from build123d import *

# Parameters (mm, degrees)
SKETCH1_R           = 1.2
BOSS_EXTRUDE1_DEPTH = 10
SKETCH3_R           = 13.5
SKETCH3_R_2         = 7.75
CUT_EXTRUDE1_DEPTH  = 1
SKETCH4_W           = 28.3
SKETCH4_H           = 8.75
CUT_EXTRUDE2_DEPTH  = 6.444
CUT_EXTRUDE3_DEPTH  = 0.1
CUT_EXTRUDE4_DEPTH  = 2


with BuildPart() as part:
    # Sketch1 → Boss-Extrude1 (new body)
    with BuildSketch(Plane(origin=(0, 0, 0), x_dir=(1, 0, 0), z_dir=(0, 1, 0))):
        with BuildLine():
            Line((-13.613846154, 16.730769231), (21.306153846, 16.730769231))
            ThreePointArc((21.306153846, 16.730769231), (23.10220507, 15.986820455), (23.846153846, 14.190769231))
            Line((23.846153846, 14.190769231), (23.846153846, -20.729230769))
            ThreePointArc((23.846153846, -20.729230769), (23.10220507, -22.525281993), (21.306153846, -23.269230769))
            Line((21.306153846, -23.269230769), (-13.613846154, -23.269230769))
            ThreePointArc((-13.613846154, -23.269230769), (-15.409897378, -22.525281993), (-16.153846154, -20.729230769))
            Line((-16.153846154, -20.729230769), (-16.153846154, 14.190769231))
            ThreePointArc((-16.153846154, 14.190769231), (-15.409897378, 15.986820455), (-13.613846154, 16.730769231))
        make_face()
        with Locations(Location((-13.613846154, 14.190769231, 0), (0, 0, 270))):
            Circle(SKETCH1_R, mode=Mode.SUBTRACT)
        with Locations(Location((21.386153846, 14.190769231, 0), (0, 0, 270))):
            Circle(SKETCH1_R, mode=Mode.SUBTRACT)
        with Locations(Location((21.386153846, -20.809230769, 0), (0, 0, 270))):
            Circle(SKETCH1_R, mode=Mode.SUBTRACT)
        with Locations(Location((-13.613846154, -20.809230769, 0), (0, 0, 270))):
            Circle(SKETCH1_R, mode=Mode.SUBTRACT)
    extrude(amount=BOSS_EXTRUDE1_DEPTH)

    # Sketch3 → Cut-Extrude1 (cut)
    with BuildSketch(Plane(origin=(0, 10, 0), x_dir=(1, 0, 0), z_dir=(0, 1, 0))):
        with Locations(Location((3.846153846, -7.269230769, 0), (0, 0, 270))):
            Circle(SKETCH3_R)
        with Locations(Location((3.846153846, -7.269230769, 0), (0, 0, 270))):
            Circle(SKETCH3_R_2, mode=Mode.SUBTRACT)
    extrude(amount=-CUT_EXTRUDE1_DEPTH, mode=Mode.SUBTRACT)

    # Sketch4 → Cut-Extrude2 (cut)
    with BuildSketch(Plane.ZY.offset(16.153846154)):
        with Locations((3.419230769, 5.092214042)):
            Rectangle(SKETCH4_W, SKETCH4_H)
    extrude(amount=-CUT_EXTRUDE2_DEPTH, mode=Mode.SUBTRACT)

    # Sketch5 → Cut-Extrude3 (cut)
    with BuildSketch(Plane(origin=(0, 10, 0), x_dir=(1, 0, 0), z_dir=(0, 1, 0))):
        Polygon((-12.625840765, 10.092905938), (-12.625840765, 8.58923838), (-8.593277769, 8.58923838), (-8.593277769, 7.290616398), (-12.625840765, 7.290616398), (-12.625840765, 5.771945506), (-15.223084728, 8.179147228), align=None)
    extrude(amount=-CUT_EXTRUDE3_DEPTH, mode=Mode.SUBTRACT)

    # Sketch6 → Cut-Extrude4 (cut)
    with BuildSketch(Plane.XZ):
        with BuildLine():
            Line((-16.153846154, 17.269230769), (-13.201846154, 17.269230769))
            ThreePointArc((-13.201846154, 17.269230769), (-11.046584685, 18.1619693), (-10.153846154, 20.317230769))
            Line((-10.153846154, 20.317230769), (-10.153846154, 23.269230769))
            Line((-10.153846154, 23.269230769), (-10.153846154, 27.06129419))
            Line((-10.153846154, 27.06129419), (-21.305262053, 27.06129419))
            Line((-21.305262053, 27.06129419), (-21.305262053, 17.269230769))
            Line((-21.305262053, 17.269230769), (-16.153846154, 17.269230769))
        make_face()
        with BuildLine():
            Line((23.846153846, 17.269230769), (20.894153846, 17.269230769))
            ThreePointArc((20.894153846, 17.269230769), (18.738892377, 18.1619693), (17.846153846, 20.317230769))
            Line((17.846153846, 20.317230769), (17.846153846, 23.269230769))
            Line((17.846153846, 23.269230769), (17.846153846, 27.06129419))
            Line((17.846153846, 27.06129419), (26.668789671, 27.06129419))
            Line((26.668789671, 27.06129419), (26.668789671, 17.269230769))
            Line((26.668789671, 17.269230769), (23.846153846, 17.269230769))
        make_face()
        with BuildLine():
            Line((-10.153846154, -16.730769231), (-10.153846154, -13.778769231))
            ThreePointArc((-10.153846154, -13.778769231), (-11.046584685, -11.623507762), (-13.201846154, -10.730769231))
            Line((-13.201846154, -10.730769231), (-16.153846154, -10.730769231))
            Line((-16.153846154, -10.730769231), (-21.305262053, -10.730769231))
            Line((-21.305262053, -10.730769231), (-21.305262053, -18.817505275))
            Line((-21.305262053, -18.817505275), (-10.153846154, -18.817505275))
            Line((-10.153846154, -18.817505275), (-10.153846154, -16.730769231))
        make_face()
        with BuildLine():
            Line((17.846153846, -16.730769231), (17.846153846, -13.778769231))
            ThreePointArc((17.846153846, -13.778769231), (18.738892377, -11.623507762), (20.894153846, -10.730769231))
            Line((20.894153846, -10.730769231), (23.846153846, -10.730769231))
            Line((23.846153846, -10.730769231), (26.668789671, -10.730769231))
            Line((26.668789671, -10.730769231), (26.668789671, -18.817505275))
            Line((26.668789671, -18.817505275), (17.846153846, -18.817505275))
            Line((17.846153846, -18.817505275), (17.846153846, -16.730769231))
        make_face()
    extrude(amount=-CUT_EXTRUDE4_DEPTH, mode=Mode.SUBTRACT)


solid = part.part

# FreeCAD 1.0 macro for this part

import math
import FreeCAD as App
import Part
import Sketcher
from FreeCAD import Vector
Q = App.Units.Quantity


def add_polygon(sketch, points):
    """Adds a closed chain of lines whose ends are joined by coincident constraints."""
    first, n = sketch.GeometryCount, len(points)
    for a, b in zip(points, points[1:] + points[:1]):
        sketch.addGeometry(Part.LineSegment(App.Vector(*a, 0), App.Vector(*b, 0)), False)
    for i in range(n):
        sketch.addConstraint(Sketcher.Constraint("Coincident", first + i, 2, first + (i + 1) % n, 1))

doc = App.newDocument("Part")
body = doc.addObject("PartDesign::Body", "Body")

sketch1 = doc.addObject("Sketcher::SketchObject", "Sketch")
body.addObject(sketch1)
sketch1.AttachmentSupport = (doc.XZ_Plane, [""])
sketch1.MapMode = "FlatFace"
sketch1.addGeometry(Part.LineSegment(Vector(21.3, -16.7, 0), Vector(-13.6, -16.7, 0)), False)
sketch1.addGeometry(Part.ArcOfCircle(Part.Circle(Vector(-13.6, -14.2, 0), Vector(0, 0, 1), 2.5), math.radians(-180), math.radians(-90)), False)
sketch1.addGeometry(Part.LineSegment(Vector(-16.2, -14.2, 0), Vector(-16.2, 20.7, 0)), False)
sketch1.addGeometry(Part.ArcOfCircle(Part.Circle(Vector(-13.6, 20.7, 0), Vector(0, 0, 1), 2.5), math.radians(90), math.radians(180)), False)
sketch1.addGeometry(Part.LineSegment(Vector(-13.6, 23.3, 0), Vector(21.3, 23.3, 0)), False)
sketch1.addGeometry(Part.ArcOfCircle(Part.Circle(Vector(21.3, 20.7, 0), Vector(0, 0, 1), 2.5), math.radians(0), math.radians(90)), False)
sketch1.addGeometry(Part.LineSegment(Vector(23.8, 20.7, 0), Vector(23.8, -14.2, 0)), False)
sketch1.addGeometry(Part.ArcOfCircle(Part.Circle(Vector(21.3, -14.2, 0), Vector(0, 0, 1), 2.5), math.radians(-90), math.radians(0)), False)
sketch1.addGeometry(Part.Circle(Vector(21.4, 20.8, 0), Vector(0, 0, 1), 1.2), False)
sketch1.addGeometry(Part.Circle(Vector(-13.6, 20.8, 0), Vector(0, 0, 1), 1.2), False)
sketch1.addGeometry(Part.Circle(Vector(21.4, -14.2, 0), Vector(0, 0, 1), 1.2), False)
sketch1.addGeometry(Part.Circle(Vector(-13.6, -14.2, 0), Vector(0, 0, 1), 1.2), False)
sketch1.addConstraint(Sketcher.Constraint("Tangent", 0, 2, 1, 2))
sketch1.addConstraint(Sketcher.Constraint("Tangent", 1, 1, 2, 1))
sketch1.addConstraint(Sketcher.Constraint("Tangent", 2, 2, 3, 2))
sketch1.addConstraint(Sketcher.Constraint("Tangent", 3, 1, 4, 1))
sketch1.addConstraint(Sketcher.Constraint("Tangent", 4, 2, 5, 2))
sketch1.addConstraint(Sketcher.Constraint("Tangent", 5, 1, 6, 1))
sketch1.addConstraint(Sketcher.Constraint("Tangent", 6, 2, 7, 2))
sketch1.addConstraint(Sketcher.Constraint("Tangent", 7, 1, 0, 1))
sketch1.addConstraint(Sketcher.Constraint("Horizontal", 0))
sketch1.addConstraint(Sketcher.Constraint("Vertical", 2))
sketch1.addConstraint(Sketcher.Constraint("Horizontal", 4))
sketch1.addConstraint(Sketcher.Constraint("Vertical", 6))
sketch1.addConstraint(Sketcher.Constraint("Coincident", 11, 3, 1, 3))
sketch1.addConstraint(Sketcher.Constraint("Equal", 1, 3))
sketch1.addConstraint(Sketcher.Constraint("Equal", 3, 5))
sketch1.addConstraint(Sketcher.Constraint("Equal", 5, 7))
sketch1.addConstraint(Sketcher.Constraint("Equal", 8, 9))
sketch1.addConstraint(Sketcher.Constraint("Equal", 9, 10))
sketch1.addConstraint(Sketcher.Constraint("Equal", 10, 11))
sketch1.addConstraint(Sketcher.Constraint("Horizontal", 8, 3, 9, 3))
sketch1.addConstraint(Sketcher.Constraint("Horizontal", 7, 3, 10, 3))
sketch1.addConstraint(Sketcher.Constraint("Vertical", 3, 3, 9, 3))
sketch1.addConstraint(Sketcher.Constraint("Vertical", 8, 3, 10, 3))
sketch1.addConstraint(Sketcher.Constraint("Equal", 4, 2))
sketch1.addConstraint(Sketcher.Constraint("Diameter", 8, Q("2.4 mm")))
sketch1.addConstraint(Sketcher.Constraint("Radius", 1, Q("2.54 mm")))
sketch1.addConstraint(Sketcher.Constraint("DistanceX", 3, 3, 8, 3, Q("35 mm")))
sketch1.addConstraint(Sketcher.Constraint("DistanceY", 7, 3, 8, 3, Q("35 mm")))
sketch1.addConstraint(Sketcher.Constraint("DistanceX", 0, 2, 0, 1, Q("34.92 mm")))
sketch1.addConstraint(Sketcher.Constraint("DistanceY", 1, 3, -1, 1, Q("14.190769 mm")))
sketch1.addConstraint(Sketcher.Constraint("DistanceX", 1, 3, -1, 1, Q("13.613846 mm")))
pad1 = doc.addObject("PartDesign::Pad", "Pad")
body.addObject(pad1)
pad1.Profile = sketch1
pad1.Length = 10
pad1.Reversed = True

sketch2 = doc.addObject("Sketcher::SketchObject", "Sketch001")
body.addObject(sketch2)
sketch2.AttachmentSupport = (doc.XZ_Plane, [""])
sketch2.MapMode = "FlatFace"
sketch2.AttachmentOffset = App.Placement(Vector(0, 0, -10), App.Rotation())
sketch2.addGeometry(Part.Circle(Vector(4, 7, 0), Vector(0, 0, 1), 14), False)
sketch2.addGeometry(Part.Circle(Vector(4, 7, 0), Vector(0, 0, 1), 8), False)
sketch2.addConstraint(Sketcher.Constraint("Coincident", 1, 3, 0, 3))
sketch2.addConstraint(Sketcher.Constraint("Diameter", 0, Q("27 mm")))
sketch2.addConstraint(Sketcher.Constraint("Diameter", 1, Q("15.5 mm")))
sketch2.addConstraint(Sketcher.Constraint("DistanceY", -1, 1, 0, 3, Q("7.269231 mm")))
sketch2.addConstraint(Sketcher.Constraint("DistanceX", -1, 1, 0, 3, Q("3.846154 mm")))
pocket1 = doc.addObject("PartDesign::Pocket", "Pocket")
body.addObject(pocket1)
pocket1.Profile = sketch2
pocket1.Length = 1
pocket1.Reversed = True

sketch3 = doc.addObject("Sketcher::SketchObject", "Sketch002")
body.addObject(sketch3)
sketch3.AttachmentSupport = (doc.YZ_Plane, [""])
sketch3.MapMode = "FlatFace"
sketch3.AttachmentOffset = App.Placement(Vector(0, 0, -16.153846), App.Rotation())
add_polygon(sketch3, [(9, -11), (1, -11), (1, 18), (9, 18)])
sketch3.addConstraint(Sketcher.Constraint("Horizontal", 0))
sketch3.addConstraint(Sketcher.Constraint("Vertical", 1))
sketch3.addConstraint(Sketcher.Constraint("Horizontal", 2))
sketch3.addConstraint(Sketcher.Constraint("Vertical", 3))
sketch3.addConstraint(Sketcher.Constraint("DistanceY", 1, 1, 1, 2, Q("28.3 mm")))
sketch3.addConstraint(Sketcher.Constraint("DistanceX", 0, 2, 0, 1, Q("8.75 mm")))
sketch3.addConstraint(Sketcher.Constraint("DistanceY", 0, 2, -1, 1, Q("10.730769 mm")))
sketch3.addConstraint(Sketcher.Constraint("DistanceX", -1, 1, 0, 2, Q("0.717214 mm")))
pocket2 = doc.addObject("PartDesign::Pocket", "Pocket001")
body.addObject(pocket2)
pocket2.Profile = sketch3
pocket2.Length = 6.444
pocket2.Reversed = True

sketch4 = doc.addObject("Sketcher::SketchObject", "Sketch003")
body.addObject(sketch4)
sketch4.AttachmentSupport = (doc.XZ_Plane, [""])
sketch4.MapMode = "FlatFace"
sketch4.AttachmentOffset = App.Placement(Vector(0, 0, -10), App.Rotation())
add_polygon(sketch4, [(-12.6, -8.6), (-12.6, -10.1), (-15.2, -8.2), (-12.6, -5.8), (-12.6, -7.3), (-8.6, -7.3), (-8.6, -8.6)])
sketch4.addConstraint(Sketcher.Constraint("Vertical", 0))
sketch4.addConstraint(Sketcher.Constraint("Vertical", 3))
sketch4.addConstraint(Sketcher.Constraint("Horizontal", 4))
sketch4.addConstraint(Sketcher.Constraint("Vertical", 5))
sketch4.addConstraint(Sketcher.Constraint("Horizontal", 6))
sketch4.addConstraint(Sketcher.Constraint("Vertical", 0, 2, 2, 2))
sketch4.addConstraint(Sketcher.Constraint("DistanceY", 3, 2, 3, 1, Q("1.518671 mm")))
sketch4.addConstraint(Sketcher.Constraint("DistanceY", 5, 2, 5, 1, Q("1.298622 mm")))
sketch4.addConstraint(Sketcher.Constraint("DistanceY", 1, 2, 2, 2, Q("2.407202 mm")))
sketch4.addConstraint(Sketcher.Constraint("Distance", 2, Q("3.541228 mm")))
sketch4.addConstraint(Sketcher.Constraint("DistanceX", 4, 1, 4, 2, Q("4.032563 mm")))
sketch4.addConstraint(Sketcher.Constraint("DistanceY", 0, 2, 0, 1, Q("1.503668 mm")))
sketch4.addConstraint(Sketcher.Constraint("DistanceX", 0, 2, -1, 1, Q("12.625841 mm")))
sketch4.addConstraint(Sketcher.Constraint("DistanceY", 5, 2, -1, 1, Q("8.589238 mm")))
pocket3 = doc.addObject("PartDesign::Pocket", "Pocket002")
body.addObject(pocket3)
pocket3.Profile = sketch4
pocket3.Length = 0.1
pocket3.Reversed = True

sketch5 = doc.addObject("Sketcher::SketchObject", "Sketch004")
body.addObject(sketch5)
sketch5.AttachmentSupport = (doc.XZ_Plane, [""])
sketch5.MapMode = "FlatFace"
sketch5.addGeometry(Part.ArcOfCircle(Part.Circle(Vector(-13.2, 20.3, 0), Vector(0, 0, 1), 3), math.radians(-90), math.radians(0)), False)
sketch5.addGeometry(Part.LineSegment(Vector(-10.2, 20.3, 0), Vector(-10.2, 27.1, 0)), False)
sketch5.addGeometry(Part.LineSegment(Vector(-10.2, 27.1, 0), Vector(-21.3, 27.1, 0)), False)
sketch5.addGeometry(Part.LineSegment(Vector(-21.3, 27.1, 0), Vector(-21.3, 17.3, 0)), False)
sketch5.addGeometry(Part.LineSegment(Vector(-21.3, 17.3, 0), Vector(-13.2, 17.3, 0)), False)
sketch5.addGeometry(Part.ArcOfCircle(Part.Circle(Vector(20.9, 20.3, 0), Vector(0, 0, 1), 3), math.radians(180), math.radians(270)), False)
sketch5.addGeometry(Part.LineSegment(Vector(20.9, 17.3, 0), Vector(26.7, 17.3, 0)), False)
sketch5.addGeometry(Part.LineSegment(Vector(26.7, 17.3, 0), Vector(26.7, 27.1, 0)), False)
sketch5.addGeometry(Part.LineSegment(Vector(26.7, 27.1, 0), Vector(17.8, 27.1, 0)), False)
sketch5.addGeometry(Part.LineSegment(Vector(17.8, 27.1, 0), Vector(17.8, 20.3, 0)), False)
sketch5.addGeometry(Part.ArcOfCircle(Part.Circle(Vector(-13.2, -13.8, 0), Vector(0, 0, 1), 3), math.radians(0), math.radians(90)), False)
sketch5.addGeometry(Part.LineSegment(Vector(-13.2, -10.7, 0), Vector(-21.3, -10.7, 0)), False)
sketch5.addGeometry(Part.LineSegment(Vector(-21.3, -10.7, 0), Vector(-21.3, -18.8, 0)), False)
sketch5.addGeometry(Part.LineSegment(Vector(-21.3, -18.8, 0), Vector(-10.2, -18.8, 0)), False)
sketch5.addGeometry(Part.LineSegment(Vector(-10.2, -18.8, 0), Vector(-10.2, -13.8, 0)), False)
sketch5.addGeometry(Part.ArcOfCircle(Part.Circle(Vector(20.9, -13.8, 0), Vector(0, 0, 1), 3), math.radians(90), math.radians(180)), False)
sketch5.addGeometry(Part.LineSegment(Vector(17.8, -13.8, 0), Vector(17.8, -18.8, 0)), False)
sketch5.addGeometry(Part.LineSegment(Vector(17.8, -18.8, 0), Vector(26.7, -18.8, 0)), False)
sketch5.addGeometry(Part.LineSegment(Vector(26.7, -18.8, 0), Vector(26.7, -10.7, 0)), False)
sketch5.addGeometry(Part.LineSegment(Vector(26.7, -10.7, 0), Vector(20.9, -10.7, 0)), False)
sketch5.addConstraint(Sketcher.Constraint("Tangent", 0, 2, 1, 1))
sketch5.addConstraint(Sketcher.Constraint("Coincident", 1, 2, 2, 1))
sketch5.addConstraint(Sketcher.Constraint("Coincident", 2, 2, 3, 1))
sketch5.addConstraint(Sketcher.Constraint("Coincident", 3, 2, 4, 1))
sketch5.addConstraint(Sketcher.Constraint("Tangent", 4, 2, 0, 1))
sketch5.addConstraint(Sketcher.Constraint("Tangent", 5, 2, 6, 1))
sketch5.addConstraint(Sketcher.Constraint("Coincident", 6, 2, 7, 1))
sketch5.addConstraint(Sketcher.Constraint("Coincident", 7, 2, 8, 1))
sketch5.addConstraint(Sketcher.Constraint("Coincident", 8, 2, 9, 1))
sketch5.addConstraint(Sketcher.Constraint("Tangent", 9, 2, 5, 1))
sketch5.addConstraint(Sketcher.Constraint("Tangent", 10, 2, 11, 1))
sketch5.addConstraint(Sketcher.Constraint("Coincident", 11, 2, 12, 1))
sketch5.addConstraint(Sketcher.Constraint("Coincident", 12, 2, 13, 1))
sketch5.addConstraint(Sketcher.Constraint("Coincident", 13, 2, 14, 1))
sketch5.addConstraint(Sketcher.Constraint("Tangent", 14, 2, 10, 1))
sketch5.addConstraint(Sketcher.Constraint("Tangent", 15, 2, 16, 1))
sketch5.addConstraint(Sketcher.Constraint("Coincident", 16, 2, 17, 1))
sketch5.addConstraint(Sketcher.Constraint("Coincident", 17, 2, 18, 1))
sketch5.addConstraint(Sketcher.Constraint("Coincident", 18, 2, 19, 1))
sketch5.addConstraint(Sketcher.Constraint("Tangent", 19, 2, 15, 1))
sketch5.addConstraint(Sketcher.Constraint("Vertical", 1))
sketch5.addConstraint(Sketcher.Constraint("Horizontal", 2))
sketch5.addConstraint(Sketcher.Constraint("Vertical", 3))
sketch5.addConstraint(Sketcher.Constraint("Horizontal", 4))
sketch5.addConstraint(Sketcher.Constraint("Horizontal", 6))
sketch5.addConstraint(Sketcher.Constraint("Vertical", 7))
sketch5.addConstraint(Sketcher.Constraint("Horizontal", 8))
sketch5.addConstraint(Sketcher.Constraint("Vertical", 9))
sketch5.addConstraint(Sketcher.Constraint("Horizontal", 11))
sketch5.addConstraint(Sketcher.Constraint("Vertical", 12))
sketch5.addConstraint(Sketcher.Constraint("Horizontal", 13))
sketch5.addConstraint(Sketcher.Constraint("Vertical", 14))
sketch5.addConstraint(Sketcher.Constraint("Vertical", 16))
sketch5.addConstraint(Sketcher.Constraint("Horizontal", 17))
sketch5.addConstraint(Sketcher.Constraint("Vertical", 18))
sketch5.addConstraint(Sketcher.Constraint("Horizontal", 19))
sketch5.addConstraint(Sketcher.Constraint("Equal", 0, 5))
sketch5.addConstraint(Sketcher.Constraint("Equal", 5, 10))
sketch5.addConstraint(Sketcher.Constraint("Equal", 10, 15))
sketch5.addConstraint(Sketcher.Constraint("Horizontal", 0, 3, 5, 3))
sketch5.addConstraint(Sketcher.Constraint("Horizontal", 10, 3, 15, 3))
sketch5.addConstraint(Sketcher.Constraint("Horizontal", 2, 2, 7, 2))
sketch5.addConstraint(Sketcher.Constraint("Horizontal", 13, 2, 16, 2))
sketch5.addConstraint(Sketcher.Constraint("Vertical", 0, 3, 10, 3))
sketch5.addConstraint(Sketcher.Constraint("Vertical", 5, 3, 15, 3))
sketch5.addConstraint(Sketcher.Constraint("Vertical", 3, 2, 11, 2))
sketch5.addConstraint(Sketcher.Constraint("Vertical", 7, 2, 17, 2))
sketch5.addConstraint(Sketcher.Constraint("Radius", 0, Q("3.048 mm")))
sketch5.addConstraint(Sketcher.Constraint("DistanceX", 1, 2, 8, 2, Q("28 mm")))
sketch5.addConstraint(Sketcher.Constraint("DistanceY", 10, 2, 4, 2, Q("28 mm")))
sketch5.addConstraint(Sketcher.Constraint("DistanceX", 2, 2, 2, 1, Q("11.151416 mm")))
sketch5.addConstraint(Sketcher.Constraint("DistanceX", 6, 1, 6, 2, Q("5.774636 mm")))
sketch5.addConstraint(Sketcher.Constraint("DistanceY", 1, 1, 1, 2, Q("6.744063 mm")))
sketch5.addConstraint(Sketcher.Constraint("DistanceY", 12, 2, 12, 1, Q("8.086736 mm")))
sketch5.addConstraint(Sketcher.Constraint("DistanceY", -1, 1, 0, 3, Q("20.317231 mm")))
sketch5.addConstraint(Sketcher.Constraint("DistanceX", -1, 1, 6, 2, Q("26.66879 mm")))
pocket4 = doc.addObject("PartDesign::Pocket", "Pocket003")
body.addObject(pocket4)
pocket4.Profile = sketch5
pocket4.Length = 2

doc.recompute()
